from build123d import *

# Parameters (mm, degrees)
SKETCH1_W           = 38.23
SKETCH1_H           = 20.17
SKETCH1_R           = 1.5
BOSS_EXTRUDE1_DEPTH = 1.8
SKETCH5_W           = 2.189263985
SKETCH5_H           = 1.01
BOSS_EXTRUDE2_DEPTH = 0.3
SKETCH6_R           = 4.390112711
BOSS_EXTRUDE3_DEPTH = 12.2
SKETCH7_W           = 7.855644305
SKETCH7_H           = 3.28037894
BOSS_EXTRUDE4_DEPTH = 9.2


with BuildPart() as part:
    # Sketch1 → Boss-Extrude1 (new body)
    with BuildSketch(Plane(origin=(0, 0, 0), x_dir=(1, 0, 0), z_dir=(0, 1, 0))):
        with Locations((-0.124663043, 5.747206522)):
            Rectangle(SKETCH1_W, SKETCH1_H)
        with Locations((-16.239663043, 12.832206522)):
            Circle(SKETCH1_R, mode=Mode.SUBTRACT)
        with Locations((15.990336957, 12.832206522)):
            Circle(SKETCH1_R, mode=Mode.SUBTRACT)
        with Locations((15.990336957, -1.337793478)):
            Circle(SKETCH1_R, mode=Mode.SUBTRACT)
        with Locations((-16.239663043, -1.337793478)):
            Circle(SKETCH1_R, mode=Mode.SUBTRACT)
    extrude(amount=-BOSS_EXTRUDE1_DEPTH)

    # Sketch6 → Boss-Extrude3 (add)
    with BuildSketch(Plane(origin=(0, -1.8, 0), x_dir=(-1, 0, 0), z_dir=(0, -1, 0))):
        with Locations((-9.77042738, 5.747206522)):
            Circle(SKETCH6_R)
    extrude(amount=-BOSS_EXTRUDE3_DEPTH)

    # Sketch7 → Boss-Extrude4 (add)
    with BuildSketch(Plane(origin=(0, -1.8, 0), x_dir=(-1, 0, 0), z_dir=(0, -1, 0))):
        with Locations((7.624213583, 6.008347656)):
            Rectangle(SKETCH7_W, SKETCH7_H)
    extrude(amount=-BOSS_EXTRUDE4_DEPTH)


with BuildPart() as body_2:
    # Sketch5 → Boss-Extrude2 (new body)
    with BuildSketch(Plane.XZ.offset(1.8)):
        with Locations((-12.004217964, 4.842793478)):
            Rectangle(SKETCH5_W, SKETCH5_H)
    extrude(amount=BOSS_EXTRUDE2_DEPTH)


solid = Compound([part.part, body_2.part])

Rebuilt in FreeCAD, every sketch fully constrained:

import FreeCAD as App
import Part
import Sketcher
from FreeCAD import Vector
Q = App.Units.Quantity

doc = App.newDocument("Part")
body = doc.addObject("PartDesign::Body", "Body")

# Sketch on XZ plane
sketch1 = body.newObject("Sketcher::SketchObject", "Sketch")
sketch1.AttachmentSupport = (doc.getObject("XZ_Plane"), [""])
sketch1.MapMode = "FlatFace"
sketch1.addGeometry(Part.LineSegment(Vector(-19.239663, -15.832207, 0), Vector(-19.239663, 4.337793, 0)), False)
sketch1.addGeometry(Part.LineSegment(Vector(-19.239663, 4.337793, 0), Vector(18.990337, 4.337793, 0)), False)
sketch1.addGeometry(Part.LineSegment(Vector(18.990337, 4.337793, 0), Vector(18.990337, -15.832207, 0)), False)
sketch1.addGeometry(Part.LineSegment(Vector(18.990337, -15.832207, 0), Vector(-19.239663, -15.832207, 0)), False)
sketch1.addGeometry(Part.Circle(Vector(-16.239663, 1.337793, 0), Vector(0, 0, 1), 1.5), False)
sketch1.addGeometry(Part.Circle(Vector(15.990337, 1.337793, 0), Vector(0, 0, 1), 1.5), False)
sketch1.addGeometry(Part.Circle(Vector(-16.239663, -12.832207, 0), Vector(0, 0, 1), 1.5), False)
sketch1.addGeometry(Part.Circle(Vector(15.990337, -12.832207, 0), Vector(0, 0, 1), 1.5), False)
sketch1.addConstraint(Sketcher.Constraint("Coincident", 0, 2, 1, 1))
sketch1.addConstraint(Sketcher.Constraint("Coincident", 1, 2, 2, 1))
sketch1.addConstraint(Sketcher.Constraint("Coincident", 2, 2, 3, 1))
sketch1.addConstraint(Sketcher.Constraint("Coincident", 3, 2, 0, 1))
sketch1.addConstraint(Sketcher.Constraint("Vertical", 0))
sketch1.addConstraint(Sketcher.Constraint("Horizontal", 1))
sketch1.addConstraint(Sketcher.Constraint("Vertical", 2))
sketch1.addConstraint(Sketcher.Constraint("Horizontal", 3))
sketch1.addConstraint(Sketcher.Constraint("Equal", 4, 5))
sketch1.addConstraint(Sketcher.Constraint("Equal", 5, 6))
sketch1.addConstraint(Sketcher.Constraint("Equal", 6, 7))
sketch1.addConstraint(Sketcher.Constraint("Horizontal", 4, 3, 5, 3))
sketch1.addConstraint(Sketcher.Constraint("Horizontal", 6, 3, 7, 3))
sketch1.addConstraint(Sketcher.Constraint("Vertical", 4, 3, 6, 3))
sketch1.addConstraint(Sketcher.Constraint("Vertical", 5, 3, 7, 3))
sketch1.addConstraint(Sketcher.Constraint("Diameter", 4, Q("3 mm")))
sketch1.addConstraint(Sketcher.Constraint("DistanceX", 0, 2, 4, 3, Q("3 mm")))
sketch1.addConstraint(Sketcher.Constraint("DistanceY", 4, 3, 0, 2, Q("3 mm")))
sketch1.addConstraint(Sketcher.Constraint("DistanceX", 5, 3, 1, 2, Q("3 mm")))
sketch1.addConstraint(Sketcher.Constraint("DistanceY", 2, 2, 7, 3, Q("3 mm")))
sketch1.addConstraint(Sketcher.Constraint("DistanceX", 1, 1, 1, 2, Q("38.23 mm")))
sketch1.addConstraint(Sketcher.Constraint("DistanceY", 0, 1, 0, 2, Q("20.17 mm")))
sketch1.addConstraint(Sketcher.Constraint("DistanceX", 4, 3, -1, 1, Q("16.239663 mm")))
sketch1.addConstraint(Sketcher.Constraint("DistanceY", -1, 1, 4, 3, Q("1.337793 mm")))
pad1 = body.newObject("PartDesign::Pad", "Pad")
pad1.Profile = sketch1
pad1.Length = 1.8

# Sketch on XZ plane
sketch2 = body.newObject("Sketcher::SketchObject", "Sketch001")
sketch2.AttachmentSupport = (doc.getObject("XZ_Plane"), [""])
sketch2.MapMode = "FlatFace"
sketch2.AttachmentOffset = App.Placement(Vector(0, 0, 1.8), App.Rotation())
sketch2.addGeometry(Part.Circle(Vector(9.770427, -5.747207, 0), Vector(0, 0, 1), 4.390113), False)
sketch2.addConstraint(Sketcher.Constraint("Diameter", 0, Q("8.780225 mm")))
sketch2.addConstraint(Sketcher.Constraint("DistanceX", -1, 1, 0, 3, Q("9.770427 mm")))
sketch2.addConstraint(Sketcher.Constraint("DistanceY", 0, 3, -1, 1, Q("5.747207 mm")))
pad2 = body.newObject("PartDesign::Pad", "Pad001")
pad2.Profile = sketch2
pad2.Length = 12.2
pad2.Reversed = True

# Sketch on XZ plane
sketch3 = body.newObject("Sketcher::SketchObject", "Sketch002")
sketch3.AttachmentSupport = (doc.getObject("XZ_Plane"), [""])
sketch3.MapMode = "FlatFace"
sketch3.AttachmentOffset = App.Placement(Vector(0, 0, 1.8), App.Rotation())
sketch3.addGeometry(Part.LineSegment(Vector(-3.696391, -7.648537, 0), Vector(-3.696391, -4.368158, 0)), False)
sketch3.addGeometry(Part.LineSegment(Vector(-3.696391, -4.368158, 0), Vector(-11.552036, -4.368158, 0)), False)
sketch3.addGeometry(Part.LineSegment(Vector(-11.552036, -4.368158, 0), Vector(-11.552036, -7.648537, 0)), False)
sketch3.addGeometry(Part.LineSegment(Vector(-11.552036, -7.648537, 0), Vector(-3.696391, -7.648537, 0)), False)
sketch3.addConstraint(Sketcher.Constraint("Coincident", 0, 2, 1, 1))
sketch3.addConstraint(Sketcher.Constraint("Coincident", 1, 2, 2, 1))
sketch3.addConstraint(Sketcher.Constraint("Coincident", 2, 2, 3, 1))
sketch3.addConstraint(Sketcher.Constraint("Coincident", 3, 2, 0, 1))
sketch3.addConstraint(Sketcher.Constraint("Vertical", 0))
sketch3.addConstraint(Sketcher.Constraint("Horizontal", 1))
sketch3.addConstraint(Sketcher.Constraint("Vertical", 2))
sketch3.addConstraint(Sketcher.Constraint("Horizontal", 3))
sketch3.addConstraint(Sketcher.Constraint("DistanceY", 0, 1, 0, 2, Q("3.280379 mm")))
sketch3.addConstraint(Sketcher.Constraint("DistanceX", 1, 2, 1, 1, Q("7.855644 mm")))
sketch3.addConstraint(Sketcher.Constraint("DistanceX", 0, 2, -1, 1, Q("3.696391 mm")))
sketch3.addConstraint(Sketcher.Constraint("DistanceY", 0, 2, -1, 1, Q("4.368158 mm")))
pad3 = body.newObject("PartDesign::Pad", "Pad002")
pad3.Profile = sketch3
pad3.Length = 9.2
pad3.Reversed = True
body2 = doc.addObject("PartDesign::Body", "Body001")

# Sketch on XZ plane
sketch4 = body2.newObject("Sketcher::SketchObject", "Sketch003")
sketch4.AttachmentSupport = (doc.getObject("XZ_Plane001"), [""])
sketch4.MapMode = "FlatFace"
sketch4.AttachmentOffset = App.Placement(Vector(0, 0, 1.8), App.Rotation())
sketch4.addGeometry(Part.LineSegment(Vector(-13.09885, 5.347793, 0), Vector(-13.09885, 4.337793, 0)), False)
sketch4.addGeometry(Part.LineSegment(Vector(-13.09885, 4.337793, 0), Vector(-10.909586, 4.337793, 0)), False)
sketch4.addGeometry(Part.LineSegment(Vector(-10.909586, 4.337793, 0), Vector(-10.909586, 5.347793, 0)), False)
sketch4.addGeometry(Part.LineSegment(Vector(-10.909586, 5.347793, 0), Vector(-13.09885, 5.347793, 0)), False)
sketch4.addConstraint(Sketcher.Constraint("Coincident", 0, 2, 1, 1))
sketch4.addConstraint(Sketcher.Constraint("Coincident", 1, 2, 2, 1))
sketch4.addConstraint(Sketcher.Constraint("Coincident", 2, 2, 3, 1))
sketch4.addConstraint(Sketcher.Constraint("Coincident", 3, 2, 0, 1))
sketch4.addConstraint(Sketcher.Constraint("Vertical", 0))
sketch4.addConstraint(Sketcher.Constraint("Horizontal", 1))
sketch4.addConstraint(Sketcher.Constraint("Vertical", 2))
sketch4.addConstraint(Sketcher.Constraint("Horizontal", 3))
sketch4.addConstraint(Sketcher.Constraint("DistanceY", 0, 2, 0, 1, Q("1.01 mm")))
sketch4.addConstraint(Sketcher.Constraint("DistanceX", 1, 1, 1, 2, Q("2.189264 mm")))
sketch4.addConstraint(Sketcher.Constraint("DistanceX", 0, 2, -1, 1, Q("13.09885 mm")))
sketch4.addConstraint(Sketcher.Constraint("DistanceY", -1, 1, 0, 2, Q("4.337793 mm")))
pad4 = body2.newObject("PartDesign::Pad", "Pad003")
pad4.Profile = sketch4
pad4.Length = 0.3

doc.recompute()
